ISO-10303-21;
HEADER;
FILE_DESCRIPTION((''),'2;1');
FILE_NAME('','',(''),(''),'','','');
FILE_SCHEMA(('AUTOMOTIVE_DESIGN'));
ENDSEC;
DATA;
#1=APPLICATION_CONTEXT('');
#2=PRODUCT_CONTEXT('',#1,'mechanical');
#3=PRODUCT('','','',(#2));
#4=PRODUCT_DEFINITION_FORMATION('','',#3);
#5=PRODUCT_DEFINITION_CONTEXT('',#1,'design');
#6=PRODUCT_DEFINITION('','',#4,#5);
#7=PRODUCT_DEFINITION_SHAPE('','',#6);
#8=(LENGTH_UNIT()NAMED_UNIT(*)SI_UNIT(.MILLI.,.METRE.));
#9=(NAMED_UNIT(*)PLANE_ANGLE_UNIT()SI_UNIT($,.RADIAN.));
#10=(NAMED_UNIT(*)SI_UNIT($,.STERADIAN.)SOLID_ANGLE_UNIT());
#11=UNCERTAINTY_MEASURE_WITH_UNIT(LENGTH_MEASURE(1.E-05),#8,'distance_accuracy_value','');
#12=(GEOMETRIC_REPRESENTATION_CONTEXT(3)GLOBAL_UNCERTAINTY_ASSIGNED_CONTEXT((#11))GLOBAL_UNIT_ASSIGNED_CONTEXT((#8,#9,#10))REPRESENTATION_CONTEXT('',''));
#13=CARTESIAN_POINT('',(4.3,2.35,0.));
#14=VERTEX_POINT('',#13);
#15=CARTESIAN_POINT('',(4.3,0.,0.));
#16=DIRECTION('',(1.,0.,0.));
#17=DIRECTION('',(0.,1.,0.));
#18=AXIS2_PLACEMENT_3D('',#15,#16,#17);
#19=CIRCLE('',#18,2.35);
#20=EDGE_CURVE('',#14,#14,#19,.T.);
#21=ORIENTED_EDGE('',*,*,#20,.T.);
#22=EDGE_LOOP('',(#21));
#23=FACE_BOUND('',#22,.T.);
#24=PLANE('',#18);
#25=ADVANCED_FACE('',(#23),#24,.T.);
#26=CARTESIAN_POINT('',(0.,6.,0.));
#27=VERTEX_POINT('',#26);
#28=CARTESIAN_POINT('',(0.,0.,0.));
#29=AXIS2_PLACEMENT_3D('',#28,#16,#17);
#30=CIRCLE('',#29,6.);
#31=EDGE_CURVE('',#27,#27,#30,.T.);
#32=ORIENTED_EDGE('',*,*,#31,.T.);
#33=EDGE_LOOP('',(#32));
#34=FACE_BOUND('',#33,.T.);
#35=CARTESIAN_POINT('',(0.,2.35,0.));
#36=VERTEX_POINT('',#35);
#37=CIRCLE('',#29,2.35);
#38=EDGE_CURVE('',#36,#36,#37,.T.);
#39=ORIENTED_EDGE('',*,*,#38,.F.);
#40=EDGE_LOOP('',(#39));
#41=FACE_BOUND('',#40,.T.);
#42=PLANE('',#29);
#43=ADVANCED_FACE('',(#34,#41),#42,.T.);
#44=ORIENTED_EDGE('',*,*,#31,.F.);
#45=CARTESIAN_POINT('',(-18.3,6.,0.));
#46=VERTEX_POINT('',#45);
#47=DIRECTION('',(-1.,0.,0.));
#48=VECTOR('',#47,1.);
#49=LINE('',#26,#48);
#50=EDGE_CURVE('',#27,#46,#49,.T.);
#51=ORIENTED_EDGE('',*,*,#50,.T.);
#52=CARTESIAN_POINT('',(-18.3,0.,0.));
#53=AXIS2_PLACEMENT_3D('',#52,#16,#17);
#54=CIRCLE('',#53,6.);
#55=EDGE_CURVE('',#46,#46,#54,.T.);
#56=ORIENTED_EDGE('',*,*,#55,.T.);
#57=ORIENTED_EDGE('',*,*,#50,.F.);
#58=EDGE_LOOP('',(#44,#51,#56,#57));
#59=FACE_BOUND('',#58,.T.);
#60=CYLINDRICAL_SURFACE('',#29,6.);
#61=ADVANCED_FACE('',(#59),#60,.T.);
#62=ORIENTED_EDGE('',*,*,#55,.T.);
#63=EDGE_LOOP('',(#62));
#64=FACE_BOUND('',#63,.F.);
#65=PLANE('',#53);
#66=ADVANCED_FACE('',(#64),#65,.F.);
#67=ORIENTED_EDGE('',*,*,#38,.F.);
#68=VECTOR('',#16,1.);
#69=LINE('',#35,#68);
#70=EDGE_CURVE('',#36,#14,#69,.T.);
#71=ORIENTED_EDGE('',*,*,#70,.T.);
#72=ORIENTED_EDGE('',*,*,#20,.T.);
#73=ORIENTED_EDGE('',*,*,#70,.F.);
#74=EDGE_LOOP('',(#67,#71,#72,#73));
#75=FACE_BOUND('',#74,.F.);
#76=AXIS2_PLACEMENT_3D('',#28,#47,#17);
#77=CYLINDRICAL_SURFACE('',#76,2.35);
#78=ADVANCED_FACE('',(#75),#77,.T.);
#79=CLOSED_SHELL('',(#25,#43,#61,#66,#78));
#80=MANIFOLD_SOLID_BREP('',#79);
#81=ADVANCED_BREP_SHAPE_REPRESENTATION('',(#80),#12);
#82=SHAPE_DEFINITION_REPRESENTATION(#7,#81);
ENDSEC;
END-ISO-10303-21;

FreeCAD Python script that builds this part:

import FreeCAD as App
import Part
import Sketcher

V = App.Vector
Q = App.Units.Quantity

doc = App.newDocument("Part")
body = doc.addObject("PartDesign::Body", "Body")

# Sketch on YZ plane
sketch1 = doc.addObject("Sketcher::SketchObject", "Sketch")
body.addObject(sketch1)
sketch1.AttachmentSupport = (doc.YZ_Plane, [""])
sketch1.MapMode = "FlatFace"
sketch1.addGeometry(Part.Circle(V(0, 0, 0), V(0, 0, 1), 6), False)
sketch1.addConstraint([
    Sketcher.Constraint("Coincident", 0, 3, -1, 1),
    Sketcher.Constraint("Diameter", 0, Q("12 mm")),
])
pad1 = doc.addObject("PartDesign::Pad", "Pad")
body.addObject(pad1)
pad1.Profile = sketch1
pad1.Length = 18.3
pad1.Reversed = True

# Sketch on YZ plane
sketch2 = doc.addObject("Sketcher::SketchObject", "Sketch001")
body.addObject(sketch2)
sketch2.AttachmentSupport = (doc.YZ_Plane, [""])
sketch2.MapMode = "FlatFace"
sketch2.addGeometry(Part.Circle(V(0, 0, 0), V(0, 0, 1), 2.4), False)
sketch2.addConstraint([
    Sketcher.Constraint("Coincident", 0, 3, -1, 1),
    Sketcher.Constraint("Diameter", 0, Q("4.7 mm")),
])
pad2 = doc.addObject("PartDesign::Pad", "Pad001")
body.addObject(pad2)
pad2.Profile = sketch2
pad2.Length = 4.3

doc.recompute()
